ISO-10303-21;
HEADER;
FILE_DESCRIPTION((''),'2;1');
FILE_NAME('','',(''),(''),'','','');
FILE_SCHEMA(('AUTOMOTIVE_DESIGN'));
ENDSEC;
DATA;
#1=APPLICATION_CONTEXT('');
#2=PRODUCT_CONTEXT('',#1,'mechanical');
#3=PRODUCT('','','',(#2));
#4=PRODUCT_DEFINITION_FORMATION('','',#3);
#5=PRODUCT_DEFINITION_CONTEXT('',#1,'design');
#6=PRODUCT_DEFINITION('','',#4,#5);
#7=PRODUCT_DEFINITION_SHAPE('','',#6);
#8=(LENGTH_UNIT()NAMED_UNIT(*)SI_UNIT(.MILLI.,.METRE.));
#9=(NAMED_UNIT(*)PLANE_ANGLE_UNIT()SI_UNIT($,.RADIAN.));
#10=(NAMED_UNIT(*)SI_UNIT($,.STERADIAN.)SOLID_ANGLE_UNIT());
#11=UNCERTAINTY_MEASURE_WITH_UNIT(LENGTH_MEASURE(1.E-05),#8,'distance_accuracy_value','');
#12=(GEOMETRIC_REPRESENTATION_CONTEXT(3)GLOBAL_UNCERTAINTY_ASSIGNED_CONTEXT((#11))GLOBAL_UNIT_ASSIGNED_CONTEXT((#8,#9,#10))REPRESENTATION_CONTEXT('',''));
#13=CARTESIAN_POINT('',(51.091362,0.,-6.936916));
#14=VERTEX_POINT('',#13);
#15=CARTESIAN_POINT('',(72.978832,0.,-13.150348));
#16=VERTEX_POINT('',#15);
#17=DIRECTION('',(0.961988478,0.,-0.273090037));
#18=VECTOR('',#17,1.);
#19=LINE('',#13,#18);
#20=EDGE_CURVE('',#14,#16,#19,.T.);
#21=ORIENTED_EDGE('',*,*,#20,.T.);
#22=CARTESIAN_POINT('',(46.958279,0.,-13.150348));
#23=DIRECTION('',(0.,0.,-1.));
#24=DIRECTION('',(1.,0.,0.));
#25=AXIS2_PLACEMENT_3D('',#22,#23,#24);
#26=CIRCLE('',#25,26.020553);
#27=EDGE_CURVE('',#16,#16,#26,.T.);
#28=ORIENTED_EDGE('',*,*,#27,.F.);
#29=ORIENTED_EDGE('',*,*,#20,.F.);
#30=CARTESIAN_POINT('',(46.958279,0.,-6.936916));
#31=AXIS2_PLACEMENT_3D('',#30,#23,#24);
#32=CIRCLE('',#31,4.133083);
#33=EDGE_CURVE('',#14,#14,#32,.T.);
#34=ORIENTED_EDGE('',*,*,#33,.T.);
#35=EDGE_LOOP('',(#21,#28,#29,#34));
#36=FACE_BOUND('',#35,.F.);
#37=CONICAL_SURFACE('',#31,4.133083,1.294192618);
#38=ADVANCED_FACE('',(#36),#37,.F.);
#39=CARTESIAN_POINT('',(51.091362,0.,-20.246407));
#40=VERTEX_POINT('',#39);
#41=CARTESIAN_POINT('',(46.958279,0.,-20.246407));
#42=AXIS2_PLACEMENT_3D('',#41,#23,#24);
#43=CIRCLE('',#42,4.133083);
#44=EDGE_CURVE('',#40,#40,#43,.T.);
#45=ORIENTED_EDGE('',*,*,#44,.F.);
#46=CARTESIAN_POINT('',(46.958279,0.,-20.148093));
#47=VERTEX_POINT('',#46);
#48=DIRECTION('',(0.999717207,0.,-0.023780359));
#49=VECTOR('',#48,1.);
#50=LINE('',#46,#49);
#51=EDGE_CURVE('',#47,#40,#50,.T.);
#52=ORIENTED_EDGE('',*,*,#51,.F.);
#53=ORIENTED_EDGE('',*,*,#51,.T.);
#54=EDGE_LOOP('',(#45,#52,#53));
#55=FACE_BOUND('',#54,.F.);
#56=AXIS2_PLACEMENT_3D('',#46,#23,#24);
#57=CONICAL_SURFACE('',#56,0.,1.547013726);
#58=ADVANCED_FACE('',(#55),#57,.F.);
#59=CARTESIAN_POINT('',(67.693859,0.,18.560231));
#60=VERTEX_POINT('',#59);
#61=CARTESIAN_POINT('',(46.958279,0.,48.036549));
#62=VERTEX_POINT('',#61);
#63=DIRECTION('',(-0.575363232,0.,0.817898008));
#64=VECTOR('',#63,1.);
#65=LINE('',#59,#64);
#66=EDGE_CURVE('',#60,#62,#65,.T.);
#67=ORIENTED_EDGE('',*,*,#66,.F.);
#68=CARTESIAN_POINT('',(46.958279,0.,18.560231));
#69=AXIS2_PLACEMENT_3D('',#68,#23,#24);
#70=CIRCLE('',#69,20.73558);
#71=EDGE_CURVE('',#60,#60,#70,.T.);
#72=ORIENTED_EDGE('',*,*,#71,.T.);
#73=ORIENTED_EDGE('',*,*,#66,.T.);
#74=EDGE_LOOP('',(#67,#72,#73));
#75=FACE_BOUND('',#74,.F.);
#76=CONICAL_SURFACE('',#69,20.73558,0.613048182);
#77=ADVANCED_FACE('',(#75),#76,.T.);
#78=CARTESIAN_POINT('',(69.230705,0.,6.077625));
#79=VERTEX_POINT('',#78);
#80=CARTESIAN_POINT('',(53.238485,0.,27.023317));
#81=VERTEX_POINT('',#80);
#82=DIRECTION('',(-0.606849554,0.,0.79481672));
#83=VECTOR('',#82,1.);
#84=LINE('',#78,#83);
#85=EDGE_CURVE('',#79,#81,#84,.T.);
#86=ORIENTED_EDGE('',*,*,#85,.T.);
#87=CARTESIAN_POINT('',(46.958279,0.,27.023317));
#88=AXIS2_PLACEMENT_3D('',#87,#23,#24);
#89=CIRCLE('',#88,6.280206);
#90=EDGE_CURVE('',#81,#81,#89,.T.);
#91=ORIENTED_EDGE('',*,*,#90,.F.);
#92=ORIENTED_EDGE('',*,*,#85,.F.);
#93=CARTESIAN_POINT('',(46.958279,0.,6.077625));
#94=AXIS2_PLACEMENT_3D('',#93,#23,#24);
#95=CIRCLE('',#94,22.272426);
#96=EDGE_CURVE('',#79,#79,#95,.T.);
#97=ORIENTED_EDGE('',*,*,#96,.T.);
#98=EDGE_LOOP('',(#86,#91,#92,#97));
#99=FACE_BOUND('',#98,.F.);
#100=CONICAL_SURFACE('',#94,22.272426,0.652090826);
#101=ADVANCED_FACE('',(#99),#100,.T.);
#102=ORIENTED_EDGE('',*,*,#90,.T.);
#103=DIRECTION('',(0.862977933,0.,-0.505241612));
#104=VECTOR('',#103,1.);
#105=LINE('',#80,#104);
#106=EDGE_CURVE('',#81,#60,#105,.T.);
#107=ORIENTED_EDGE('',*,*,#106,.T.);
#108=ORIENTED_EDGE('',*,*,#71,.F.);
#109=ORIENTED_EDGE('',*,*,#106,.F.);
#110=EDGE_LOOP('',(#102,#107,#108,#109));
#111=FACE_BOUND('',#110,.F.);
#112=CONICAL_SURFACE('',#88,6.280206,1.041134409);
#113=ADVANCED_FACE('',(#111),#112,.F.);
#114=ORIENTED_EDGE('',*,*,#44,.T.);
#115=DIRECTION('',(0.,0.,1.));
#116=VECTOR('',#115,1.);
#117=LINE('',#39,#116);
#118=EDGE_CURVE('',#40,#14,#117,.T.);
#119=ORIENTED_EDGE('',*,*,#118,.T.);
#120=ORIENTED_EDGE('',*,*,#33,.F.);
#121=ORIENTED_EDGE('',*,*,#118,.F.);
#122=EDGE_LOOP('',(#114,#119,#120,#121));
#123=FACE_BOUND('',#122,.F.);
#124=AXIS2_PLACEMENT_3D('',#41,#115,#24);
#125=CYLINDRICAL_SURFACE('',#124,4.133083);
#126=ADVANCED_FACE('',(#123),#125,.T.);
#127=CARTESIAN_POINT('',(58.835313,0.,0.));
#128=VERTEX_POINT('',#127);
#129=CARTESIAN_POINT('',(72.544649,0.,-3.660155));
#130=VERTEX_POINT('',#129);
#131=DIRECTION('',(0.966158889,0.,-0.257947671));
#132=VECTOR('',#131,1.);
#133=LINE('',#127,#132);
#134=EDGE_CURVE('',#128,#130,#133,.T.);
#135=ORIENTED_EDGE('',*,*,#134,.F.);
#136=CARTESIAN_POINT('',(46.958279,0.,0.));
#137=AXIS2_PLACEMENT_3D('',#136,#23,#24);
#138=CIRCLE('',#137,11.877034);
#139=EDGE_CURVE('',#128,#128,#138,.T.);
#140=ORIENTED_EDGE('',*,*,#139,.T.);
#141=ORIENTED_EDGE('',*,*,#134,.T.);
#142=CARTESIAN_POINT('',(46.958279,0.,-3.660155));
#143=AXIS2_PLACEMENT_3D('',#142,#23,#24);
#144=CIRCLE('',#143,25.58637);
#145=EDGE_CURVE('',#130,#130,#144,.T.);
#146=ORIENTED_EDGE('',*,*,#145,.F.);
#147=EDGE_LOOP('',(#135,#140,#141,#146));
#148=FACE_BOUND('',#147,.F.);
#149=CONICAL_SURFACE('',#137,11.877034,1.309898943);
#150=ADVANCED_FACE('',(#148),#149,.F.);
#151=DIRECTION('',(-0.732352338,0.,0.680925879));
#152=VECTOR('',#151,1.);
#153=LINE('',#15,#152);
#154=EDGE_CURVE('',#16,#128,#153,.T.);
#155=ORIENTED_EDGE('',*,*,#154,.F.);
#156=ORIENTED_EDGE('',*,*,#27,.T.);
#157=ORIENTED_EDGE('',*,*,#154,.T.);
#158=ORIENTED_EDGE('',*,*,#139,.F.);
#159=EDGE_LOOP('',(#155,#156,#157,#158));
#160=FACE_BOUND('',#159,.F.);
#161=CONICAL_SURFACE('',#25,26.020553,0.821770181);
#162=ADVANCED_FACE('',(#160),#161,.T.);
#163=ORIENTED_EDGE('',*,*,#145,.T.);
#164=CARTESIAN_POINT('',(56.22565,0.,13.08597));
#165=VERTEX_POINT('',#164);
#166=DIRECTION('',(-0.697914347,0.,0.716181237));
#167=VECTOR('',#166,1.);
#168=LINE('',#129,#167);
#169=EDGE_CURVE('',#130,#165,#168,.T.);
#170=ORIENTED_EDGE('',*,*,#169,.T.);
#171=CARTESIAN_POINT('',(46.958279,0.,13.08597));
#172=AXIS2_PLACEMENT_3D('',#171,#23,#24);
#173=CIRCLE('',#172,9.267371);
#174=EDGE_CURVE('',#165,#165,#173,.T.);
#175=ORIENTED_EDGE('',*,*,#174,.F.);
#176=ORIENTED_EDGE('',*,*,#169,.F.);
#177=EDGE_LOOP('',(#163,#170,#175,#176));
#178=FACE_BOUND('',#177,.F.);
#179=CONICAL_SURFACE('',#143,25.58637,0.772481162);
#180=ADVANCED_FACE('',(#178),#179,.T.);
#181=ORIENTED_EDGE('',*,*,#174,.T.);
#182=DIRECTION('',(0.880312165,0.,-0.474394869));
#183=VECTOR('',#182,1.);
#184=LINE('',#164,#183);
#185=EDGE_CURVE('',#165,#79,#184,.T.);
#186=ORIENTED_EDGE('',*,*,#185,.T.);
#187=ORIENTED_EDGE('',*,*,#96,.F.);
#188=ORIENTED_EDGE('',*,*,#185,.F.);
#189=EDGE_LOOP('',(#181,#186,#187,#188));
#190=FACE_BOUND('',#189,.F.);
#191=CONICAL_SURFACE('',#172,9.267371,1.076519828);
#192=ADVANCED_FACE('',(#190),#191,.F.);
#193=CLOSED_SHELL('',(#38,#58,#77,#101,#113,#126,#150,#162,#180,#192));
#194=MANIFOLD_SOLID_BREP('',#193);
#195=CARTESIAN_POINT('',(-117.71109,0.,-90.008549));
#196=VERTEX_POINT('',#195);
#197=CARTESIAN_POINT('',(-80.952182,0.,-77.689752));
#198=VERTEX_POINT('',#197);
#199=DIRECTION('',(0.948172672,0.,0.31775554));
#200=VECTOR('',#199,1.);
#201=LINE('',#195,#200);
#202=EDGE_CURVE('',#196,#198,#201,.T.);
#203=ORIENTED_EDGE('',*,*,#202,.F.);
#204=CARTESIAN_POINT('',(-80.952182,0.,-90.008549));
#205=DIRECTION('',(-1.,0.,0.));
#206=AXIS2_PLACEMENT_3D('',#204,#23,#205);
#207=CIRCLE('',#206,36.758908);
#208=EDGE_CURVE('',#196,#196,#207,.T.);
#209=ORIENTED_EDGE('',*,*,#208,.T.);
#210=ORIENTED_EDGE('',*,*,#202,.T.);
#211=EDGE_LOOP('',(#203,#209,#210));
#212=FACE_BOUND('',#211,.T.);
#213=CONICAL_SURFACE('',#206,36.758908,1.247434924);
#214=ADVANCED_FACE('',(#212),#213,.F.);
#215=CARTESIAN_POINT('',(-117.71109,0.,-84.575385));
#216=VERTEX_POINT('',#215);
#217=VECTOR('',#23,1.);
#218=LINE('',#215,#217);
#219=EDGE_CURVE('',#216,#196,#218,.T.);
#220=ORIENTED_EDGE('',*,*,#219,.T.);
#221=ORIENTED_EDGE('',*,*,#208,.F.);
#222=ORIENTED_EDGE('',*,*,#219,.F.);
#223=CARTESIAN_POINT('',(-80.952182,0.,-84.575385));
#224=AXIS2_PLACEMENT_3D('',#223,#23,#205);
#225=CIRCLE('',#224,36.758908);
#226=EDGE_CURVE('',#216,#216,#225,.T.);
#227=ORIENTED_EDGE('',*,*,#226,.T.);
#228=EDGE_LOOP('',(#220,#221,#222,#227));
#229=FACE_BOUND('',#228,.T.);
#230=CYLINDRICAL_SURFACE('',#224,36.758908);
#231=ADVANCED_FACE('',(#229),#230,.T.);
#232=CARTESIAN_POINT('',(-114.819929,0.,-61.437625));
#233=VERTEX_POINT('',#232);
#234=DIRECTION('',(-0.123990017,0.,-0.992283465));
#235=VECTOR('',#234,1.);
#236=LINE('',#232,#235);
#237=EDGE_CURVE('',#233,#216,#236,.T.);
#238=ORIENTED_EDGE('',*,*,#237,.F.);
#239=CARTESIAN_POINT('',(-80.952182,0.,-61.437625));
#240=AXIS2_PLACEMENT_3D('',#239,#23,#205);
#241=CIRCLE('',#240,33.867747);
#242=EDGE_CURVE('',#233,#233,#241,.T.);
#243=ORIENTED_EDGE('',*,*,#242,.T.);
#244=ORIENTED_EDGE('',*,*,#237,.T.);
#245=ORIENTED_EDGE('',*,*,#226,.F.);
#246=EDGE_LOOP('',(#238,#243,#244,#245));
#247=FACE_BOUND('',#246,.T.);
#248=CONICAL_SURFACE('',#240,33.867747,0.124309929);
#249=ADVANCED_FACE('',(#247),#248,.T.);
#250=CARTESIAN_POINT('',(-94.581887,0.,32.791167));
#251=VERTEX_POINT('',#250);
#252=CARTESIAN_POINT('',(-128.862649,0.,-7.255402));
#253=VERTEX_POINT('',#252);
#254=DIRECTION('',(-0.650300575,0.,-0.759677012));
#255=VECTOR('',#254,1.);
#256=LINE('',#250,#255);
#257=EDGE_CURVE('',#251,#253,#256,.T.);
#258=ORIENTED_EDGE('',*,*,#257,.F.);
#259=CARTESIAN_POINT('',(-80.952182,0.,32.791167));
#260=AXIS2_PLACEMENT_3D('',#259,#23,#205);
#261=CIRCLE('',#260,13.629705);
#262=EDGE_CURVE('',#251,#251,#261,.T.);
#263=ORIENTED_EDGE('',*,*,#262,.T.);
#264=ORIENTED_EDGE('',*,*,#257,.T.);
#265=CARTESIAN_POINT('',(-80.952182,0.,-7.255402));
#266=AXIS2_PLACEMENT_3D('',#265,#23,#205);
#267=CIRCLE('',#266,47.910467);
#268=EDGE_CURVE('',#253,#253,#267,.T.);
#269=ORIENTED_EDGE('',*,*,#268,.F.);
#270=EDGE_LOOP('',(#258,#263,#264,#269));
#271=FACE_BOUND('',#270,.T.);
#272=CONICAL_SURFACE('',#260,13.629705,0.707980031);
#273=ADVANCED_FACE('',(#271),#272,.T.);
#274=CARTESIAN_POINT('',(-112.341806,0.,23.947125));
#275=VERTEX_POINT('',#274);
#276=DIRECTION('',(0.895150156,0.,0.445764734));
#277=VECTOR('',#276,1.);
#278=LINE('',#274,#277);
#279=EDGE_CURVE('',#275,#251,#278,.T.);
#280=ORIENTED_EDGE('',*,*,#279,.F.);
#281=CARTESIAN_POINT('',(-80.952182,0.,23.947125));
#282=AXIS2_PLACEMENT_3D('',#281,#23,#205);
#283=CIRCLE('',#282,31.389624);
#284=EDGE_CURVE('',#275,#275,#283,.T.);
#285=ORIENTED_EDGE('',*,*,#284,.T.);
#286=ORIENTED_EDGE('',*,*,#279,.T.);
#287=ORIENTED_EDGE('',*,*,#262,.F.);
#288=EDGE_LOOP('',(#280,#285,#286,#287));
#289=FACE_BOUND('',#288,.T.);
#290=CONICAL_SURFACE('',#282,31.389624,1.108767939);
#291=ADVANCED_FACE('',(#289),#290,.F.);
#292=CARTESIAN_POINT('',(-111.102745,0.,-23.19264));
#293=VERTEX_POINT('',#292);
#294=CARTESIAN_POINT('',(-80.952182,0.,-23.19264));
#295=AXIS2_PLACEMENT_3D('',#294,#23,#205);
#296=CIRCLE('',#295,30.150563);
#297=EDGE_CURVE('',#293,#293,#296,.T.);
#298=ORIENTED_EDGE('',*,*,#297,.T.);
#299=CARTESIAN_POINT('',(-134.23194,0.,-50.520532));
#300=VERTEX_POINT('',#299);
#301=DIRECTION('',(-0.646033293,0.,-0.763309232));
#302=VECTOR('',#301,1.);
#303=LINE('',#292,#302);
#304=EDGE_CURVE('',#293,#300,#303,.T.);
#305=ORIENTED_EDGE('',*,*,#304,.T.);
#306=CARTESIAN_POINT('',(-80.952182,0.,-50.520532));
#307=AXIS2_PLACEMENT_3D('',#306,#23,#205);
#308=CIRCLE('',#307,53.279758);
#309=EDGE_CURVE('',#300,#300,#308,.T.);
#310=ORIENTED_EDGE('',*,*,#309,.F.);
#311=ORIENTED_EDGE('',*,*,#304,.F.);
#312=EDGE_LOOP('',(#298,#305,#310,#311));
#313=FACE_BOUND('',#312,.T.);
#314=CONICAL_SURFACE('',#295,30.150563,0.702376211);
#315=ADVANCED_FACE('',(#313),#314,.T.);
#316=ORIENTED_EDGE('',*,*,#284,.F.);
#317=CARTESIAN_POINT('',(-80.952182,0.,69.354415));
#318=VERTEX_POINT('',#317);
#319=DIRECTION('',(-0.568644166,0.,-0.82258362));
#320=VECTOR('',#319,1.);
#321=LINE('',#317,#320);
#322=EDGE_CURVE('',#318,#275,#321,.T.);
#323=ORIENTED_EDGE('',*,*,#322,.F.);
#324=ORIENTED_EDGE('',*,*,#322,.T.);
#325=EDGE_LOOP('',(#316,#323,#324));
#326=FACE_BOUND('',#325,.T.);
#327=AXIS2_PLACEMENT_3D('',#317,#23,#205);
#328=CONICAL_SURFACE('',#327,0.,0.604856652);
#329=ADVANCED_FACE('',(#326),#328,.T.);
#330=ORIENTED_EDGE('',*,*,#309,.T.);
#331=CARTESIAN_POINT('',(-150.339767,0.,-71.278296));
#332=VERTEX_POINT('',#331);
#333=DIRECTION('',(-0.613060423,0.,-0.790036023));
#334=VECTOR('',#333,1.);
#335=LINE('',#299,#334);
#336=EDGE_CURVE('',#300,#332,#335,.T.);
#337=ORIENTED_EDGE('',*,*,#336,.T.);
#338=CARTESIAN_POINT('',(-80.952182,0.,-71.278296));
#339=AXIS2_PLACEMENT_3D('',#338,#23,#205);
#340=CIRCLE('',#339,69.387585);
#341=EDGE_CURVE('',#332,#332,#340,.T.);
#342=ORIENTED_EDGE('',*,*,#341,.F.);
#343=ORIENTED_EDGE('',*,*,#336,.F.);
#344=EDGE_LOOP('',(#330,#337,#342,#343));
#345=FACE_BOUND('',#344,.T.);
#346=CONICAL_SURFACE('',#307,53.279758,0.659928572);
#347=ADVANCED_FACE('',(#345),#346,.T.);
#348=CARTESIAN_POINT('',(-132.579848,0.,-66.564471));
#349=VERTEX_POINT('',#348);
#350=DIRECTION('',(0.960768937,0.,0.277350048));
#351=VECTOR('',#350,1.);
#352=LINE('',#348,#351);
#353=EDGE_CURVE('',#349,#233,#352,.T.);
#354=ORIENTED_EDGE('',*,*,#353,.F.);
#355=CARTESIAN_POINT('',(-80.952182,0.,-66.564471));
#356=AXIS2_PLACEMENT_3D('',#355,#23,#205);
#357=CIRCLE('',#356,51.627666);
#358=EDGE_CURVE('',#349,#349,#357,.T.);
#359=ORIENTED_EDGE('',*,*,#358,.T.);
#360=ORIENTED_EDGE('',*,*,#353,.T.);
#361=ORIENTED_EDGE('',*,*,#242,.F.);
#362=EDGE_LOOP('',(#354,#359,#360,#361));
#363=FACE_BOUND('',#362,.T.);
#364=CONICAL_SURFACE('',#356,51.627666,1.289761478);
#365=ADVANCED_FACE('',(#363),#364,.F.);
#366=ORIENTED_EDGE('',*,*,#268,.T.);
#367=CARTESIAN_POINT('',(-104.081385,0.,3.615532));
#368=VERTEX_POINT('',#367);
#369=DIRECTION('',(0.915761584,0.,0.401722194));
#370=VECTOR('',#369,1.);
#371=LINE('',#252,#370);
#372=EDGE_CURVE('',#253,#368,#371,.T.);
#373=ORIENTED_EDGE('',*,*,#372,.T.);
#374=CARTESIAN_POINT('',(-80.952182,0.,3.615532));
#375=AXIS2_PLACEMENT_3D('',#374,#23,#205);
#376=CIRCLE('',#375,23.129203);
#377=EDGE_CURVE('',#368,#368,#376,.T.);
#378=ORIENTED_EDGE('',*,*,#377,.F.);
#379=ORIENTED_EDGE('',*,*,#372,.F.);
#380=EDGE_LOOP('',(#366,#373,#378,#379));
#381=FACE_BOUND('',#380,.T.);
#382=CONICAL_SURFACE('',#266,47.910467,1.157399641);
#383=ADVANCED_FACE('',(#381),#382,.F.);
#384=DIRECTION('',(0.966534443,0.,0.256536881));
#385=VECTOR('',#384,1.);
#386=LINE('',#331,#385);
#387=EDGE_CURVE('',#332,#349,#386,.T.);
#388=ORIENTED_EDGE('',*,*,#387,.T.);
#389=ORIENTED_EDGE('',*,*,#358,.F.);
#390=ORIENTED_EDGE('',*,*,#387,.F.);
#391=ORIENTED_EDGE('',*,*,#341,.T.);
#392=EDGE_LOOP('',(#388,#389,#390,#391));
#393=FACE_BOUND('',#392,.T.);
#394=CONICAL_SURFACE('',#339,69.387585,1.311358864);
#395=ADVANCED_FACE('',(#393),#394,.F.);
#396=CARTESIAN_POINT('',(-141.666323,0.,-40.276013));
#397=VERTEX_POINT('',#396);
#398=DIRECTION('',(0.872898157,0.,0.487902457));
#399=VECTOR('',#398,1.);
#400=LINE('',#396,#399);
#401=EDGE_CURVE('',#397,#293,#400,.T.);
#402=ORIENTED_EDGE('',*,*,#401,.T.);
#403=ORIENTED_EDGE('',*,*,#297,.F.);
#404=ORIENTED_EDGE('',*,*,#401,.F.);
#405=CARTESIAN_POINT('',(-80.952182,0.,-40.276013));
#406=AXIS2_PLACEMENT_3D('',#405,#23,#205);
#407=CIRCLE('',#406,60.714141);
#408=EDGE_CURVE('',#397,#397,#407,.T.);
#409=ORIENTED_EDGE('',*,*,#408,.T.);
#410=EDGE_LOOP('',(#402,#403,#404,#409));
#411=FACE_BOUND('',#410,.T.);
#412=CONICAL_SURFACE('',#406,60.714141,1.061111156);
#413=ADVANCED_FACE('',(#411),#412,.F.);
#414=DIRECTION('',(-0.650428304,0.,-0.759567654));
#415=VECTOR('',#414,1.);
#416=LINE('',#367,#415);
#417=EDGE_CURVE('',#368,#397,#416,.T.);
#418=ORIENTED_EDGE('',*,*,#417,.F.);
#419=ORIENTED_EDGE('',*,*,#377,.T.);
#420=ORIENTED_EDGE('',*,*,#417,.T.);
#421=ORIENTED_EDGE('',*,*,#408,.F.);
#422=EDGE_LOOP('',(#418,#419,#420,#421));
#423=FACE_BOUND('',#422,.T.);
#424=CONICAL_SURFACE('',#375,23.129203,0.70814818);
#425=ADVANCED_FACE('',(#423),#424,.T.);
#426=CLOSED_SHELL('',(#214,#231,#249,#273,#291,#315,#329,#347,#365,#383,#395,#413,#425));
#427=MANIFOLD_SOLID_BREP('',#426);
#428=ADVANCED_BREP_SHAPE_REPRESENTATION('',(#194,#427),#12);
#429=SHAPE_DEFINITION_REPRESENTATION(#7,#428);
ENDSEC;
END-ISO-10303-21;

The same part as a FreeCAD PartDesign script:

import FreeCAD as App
import Part
import Sketcher
Q = App.Units.Quantity


def add_polygon(sketch, points):
    """Adds a closed chain of lines whose ends are joined by coincident constraints."""
    first, n = sketch.GeometryCount, len(points)
    for a, b in zip(points, points[1:] + points[:1]):
        sketch.addGeometry(Part.LineSegment(App.Vector(*a, 0), App.Vector(*b, 0)), False)
    for i in range(n):
        sketch.addConstraint(Sketcher.Constraint("Coincident", first + i, 2, first + (i + 1) % n, 1))

doc = App.newDocument("Part")
params = doc.addObject("Spreadsheet::Sheet", "Params")
for row, (alias, value) in enumerate([
    ("revolution_angle", "360 deg"),
    ("revolution2_angle", "360 deg"),
], start=1):
    params.set(f"A{row}", alias)
    params.set(f"B{row}", "=" + value)
    params.setAlias(f"B{row}", alias)

body = doc.addObject("PartDesign::Body", "Body")

# Sketch on XZ plane
sketch1 = body.newObject("Sketcher::SketchObject", "Sketch")
sketch1.AttachmentSupport = (doc.getObject("XZ_Plane"), [""])
sketch1.MapMode = "FlatFace"
add_polygon(sketch1, [(-115, -61), (-118, -85), (-118, -90), (-81, -78), (-81, 69), (-112, 24), (-95, 33), (-129, -7), (-104, 4), (-142, -40), (-111, -23), (-134, -51), (-150, -71), (-133, -67)])  # lines 0-13
sketch1.addGeometry(Part.LineSegment(App.Vector(-81, 69, 0), App.Vector(-81, -90, 0)), True)  # axis
sketch1.addConstraint([
    Sketcher.Constraint("Vertical", 1),
    Sketcher.Constraint("Vertical", 3),
    Sketcher.Constraint("Vertical", 14),
    Sketcher.Constraint("Coincident", 14, 1, 3, 2),
    Sketcher.Constraint("Horizontal", 1, 2, 14, 2),
    Sketcher.Constraint("DistanceY", 0, 2, 3, 2, Q("153.9298 mm")),
    Sketcher.Constraint("DistanceX", 7, 2, 5, 2, Q("9.499498 mm")),
    Sketcher.Constraint("Distance", 0, Q("23.317692 mm")),
    Sketcher.Constraint("Distance", 2, Q("38.768158 mm")),
    Sketcher.Constraint("Distance", 4, Q("55.20082 mm")),
    Sketcher.Constraint("Distance", 9, Q("35.013911 mm")),
    Sketcher.Constraint("Distance", 13, Q("18.485109 mm")),
    Sketcher.Constraint("DistanceY", 1, 2, 1, 1, Q("5.433164 mm")),
    Sketcher.Constraint("DistanceY", 3, 1, 3, 2, Q("147.044167 mm")),
    Sketcher.Constraint("DistanceX", 0, 2, -1, 1, Q("117.71109 mm")),
    Sketcher.Constraint("DistanceY", 1, 2, -1, 1, Q("90.008549 mm")),
    Sketcher.Constraint("DistanceX", 6, 2, -1, 1, Q("128.862649 mm")),
    Sketcher.Constraint("DistanceY", -1, 1, 7, 2, Q("3.615532 mm")),
    Sketcher.Constraint("DistanceY", 9, 2, -1, 1, Q("23.19264 mm")),
    Sketcher.Constraint("DistanceX", 10, 2, -1, 1, Q("134.23194 mm")),
    Sketcher.Constraint("DistanceX", 12, 2, -1, 1, Q("132.579848 mm")),
    Sketcher.Constraint("DistanceY", 12, 2, -1, 1, Q("66.564471 mm")),
    Sketcher.Constraint("DistanceY", 4, 2, 3, 2, Q("45.40729 mm")),
    Sketcher.Constraint("DistanceX", 4, 2, 5, 2, Q("17.759919 mm")),
    Sketcher.Constraint("DistanceY", 5, 2, 3, 2, Q("36.563248 mm")),
    Sketcher.Constraint("DistanceY", 6, 2, 5, 2, Q("40.046569 mm")),
    Sketcher.Constraint("DistanceY", 8, 2, 6, 2, Q("33.020611 mm")),
    Sketcher.Constraint("DistanceX", 8, 2, 7, 2, Q("37.584938 mm")),
    Sketcher.Constraint("DistanceY", 10, 2, 8, 2, Q("10.244519 mm")),
    Sketcher.Constraint("DistanceY", 0, 2, 11, 2, Q("13.297089 mm")),
    Sketcher.Constraint("DistanceX", 11, 2, 9, 2, Q("39.237022 mm")),
])
revolution = body.newObject("PartDesign::Revolution", "Revolution")
revolution.Profile = sketch1
revolution.ReferenceAxis = (sketch1, ["Axis0"])
revolution.setExpression("Angle", "Params.revolution_angle")
body2 = doc.addObject("PartDesign::Body", "Body001")

# Sketch on XZ plane
sketch2 = body2.newObject("Sketcher::SketchObject", "Sketch001")
sketch2.AttachmentSupport = (doc.getObject("XZ_Plane001"), [""])
sketch2.MapMode = "FlatFace"
add_polygon(sketch2, [(47, -20.1), (51.1, -20.2), (51.1, -6.9), (73, -13.2), (58.8, 0), (72.5, -3.7), (56.2, 13.1), (69.2, 6.1), (53.2, 27), (67.7, 18.6), (47, 48)])  # lines 0-10
sketch2.addGeometry(Part.LineSegment(App.Vector(47, 48, 0), App.Vector(47, -20.2, 0)), True)  # axis
sketch2.addConstraint([
    Sketcher.Constraint("Vertical", 1),
    Sketcher.Constraint("Vertical", 10),
    Sketcher.Constraint("Vertical", 11),
    Sketcher.Constraint("Coincident", 11, 1, 9, 2),
    Sketcher.Constraint("PointOnObject", 3, 2, -1),
    Sketcher.Constraint("Horizontal", 0, 2, 11, 2),
    Sketcher.Constraint("DistanceX", 5, 2, 4, 2, Q("16.318999 mm")),
    Sketcher.Constraint("DistanceY", 1, 1, 1, 2, Q("13.309491 mm")),
    Sketcher.Constraint("DistanceY", 10, 2, 10, 1, Q("68.184642 mm")),
    Sketcher.Constraint("Distance", 2, Q("22.75232 mm")),
    Sketcher.Constraint("Distance", 3, Q("19.312451 mm")),
    Sketcher.Constraint("Distance", 6, Q("14.773231 mm")),
    Sketcher.Constraint("Distance", 8, Q("16.750572 mm")),
    Sketcher.Constraint("DistanceY", 11, 2, 11, 1, Q("68.282956 mm")),
    Sketcher.Constraint("DistanceX", -1, 1, 0, 2, Q("51.091362 mm")),
    Sketcher.Constraint("DistanceX", -1, 1, 2, 2, Q("72.978832 mm")),
    Sketcher.Constraint("DistanceX", -1, 1, 4, 2, Q("72.544649 mm")),
    Sketcher.Constraint("DistanceY", -1, 1, 5, 2, Q("13.08597 mm")),
    Sketcher.Constraint("DistanceX", -1, 1, 8, 2, Q("67.693859 mm")),
    Sketcher.Constraint("DistanceY", -1, 1, 8, 2, Q("18.560231 mm")),
    Sketcher.Constraint("DistanceX", -1, 1, 9, 2, Q("46.958279 mm")),
    Sketcher.Constraint("DistanceY", -1, 1, 9, 2, Q("48.036549 mm")),
    Sketcher.Constraint("DistanceY", 1, 2, 4, 2, Q("3.276761 mm")),
    Sketcher.Constraint("DistanceY", 4, 2, 6, 2, Q("9.73778 mm")),
    Sketcher.Constraint("DistanceX", 7, 2, 6, 2, Q("15.99222 mm")),
])
revolution2 = body2.newObject("PartDesign::Revolution", "Revolution001")
revolution2.Profile = sketch2
revolution2.ReferenceAxis = (sketch2, ["Axis0"])
revolution2.setExpression("Angle", "Params.revolution2_angle")

doc.recompute()
